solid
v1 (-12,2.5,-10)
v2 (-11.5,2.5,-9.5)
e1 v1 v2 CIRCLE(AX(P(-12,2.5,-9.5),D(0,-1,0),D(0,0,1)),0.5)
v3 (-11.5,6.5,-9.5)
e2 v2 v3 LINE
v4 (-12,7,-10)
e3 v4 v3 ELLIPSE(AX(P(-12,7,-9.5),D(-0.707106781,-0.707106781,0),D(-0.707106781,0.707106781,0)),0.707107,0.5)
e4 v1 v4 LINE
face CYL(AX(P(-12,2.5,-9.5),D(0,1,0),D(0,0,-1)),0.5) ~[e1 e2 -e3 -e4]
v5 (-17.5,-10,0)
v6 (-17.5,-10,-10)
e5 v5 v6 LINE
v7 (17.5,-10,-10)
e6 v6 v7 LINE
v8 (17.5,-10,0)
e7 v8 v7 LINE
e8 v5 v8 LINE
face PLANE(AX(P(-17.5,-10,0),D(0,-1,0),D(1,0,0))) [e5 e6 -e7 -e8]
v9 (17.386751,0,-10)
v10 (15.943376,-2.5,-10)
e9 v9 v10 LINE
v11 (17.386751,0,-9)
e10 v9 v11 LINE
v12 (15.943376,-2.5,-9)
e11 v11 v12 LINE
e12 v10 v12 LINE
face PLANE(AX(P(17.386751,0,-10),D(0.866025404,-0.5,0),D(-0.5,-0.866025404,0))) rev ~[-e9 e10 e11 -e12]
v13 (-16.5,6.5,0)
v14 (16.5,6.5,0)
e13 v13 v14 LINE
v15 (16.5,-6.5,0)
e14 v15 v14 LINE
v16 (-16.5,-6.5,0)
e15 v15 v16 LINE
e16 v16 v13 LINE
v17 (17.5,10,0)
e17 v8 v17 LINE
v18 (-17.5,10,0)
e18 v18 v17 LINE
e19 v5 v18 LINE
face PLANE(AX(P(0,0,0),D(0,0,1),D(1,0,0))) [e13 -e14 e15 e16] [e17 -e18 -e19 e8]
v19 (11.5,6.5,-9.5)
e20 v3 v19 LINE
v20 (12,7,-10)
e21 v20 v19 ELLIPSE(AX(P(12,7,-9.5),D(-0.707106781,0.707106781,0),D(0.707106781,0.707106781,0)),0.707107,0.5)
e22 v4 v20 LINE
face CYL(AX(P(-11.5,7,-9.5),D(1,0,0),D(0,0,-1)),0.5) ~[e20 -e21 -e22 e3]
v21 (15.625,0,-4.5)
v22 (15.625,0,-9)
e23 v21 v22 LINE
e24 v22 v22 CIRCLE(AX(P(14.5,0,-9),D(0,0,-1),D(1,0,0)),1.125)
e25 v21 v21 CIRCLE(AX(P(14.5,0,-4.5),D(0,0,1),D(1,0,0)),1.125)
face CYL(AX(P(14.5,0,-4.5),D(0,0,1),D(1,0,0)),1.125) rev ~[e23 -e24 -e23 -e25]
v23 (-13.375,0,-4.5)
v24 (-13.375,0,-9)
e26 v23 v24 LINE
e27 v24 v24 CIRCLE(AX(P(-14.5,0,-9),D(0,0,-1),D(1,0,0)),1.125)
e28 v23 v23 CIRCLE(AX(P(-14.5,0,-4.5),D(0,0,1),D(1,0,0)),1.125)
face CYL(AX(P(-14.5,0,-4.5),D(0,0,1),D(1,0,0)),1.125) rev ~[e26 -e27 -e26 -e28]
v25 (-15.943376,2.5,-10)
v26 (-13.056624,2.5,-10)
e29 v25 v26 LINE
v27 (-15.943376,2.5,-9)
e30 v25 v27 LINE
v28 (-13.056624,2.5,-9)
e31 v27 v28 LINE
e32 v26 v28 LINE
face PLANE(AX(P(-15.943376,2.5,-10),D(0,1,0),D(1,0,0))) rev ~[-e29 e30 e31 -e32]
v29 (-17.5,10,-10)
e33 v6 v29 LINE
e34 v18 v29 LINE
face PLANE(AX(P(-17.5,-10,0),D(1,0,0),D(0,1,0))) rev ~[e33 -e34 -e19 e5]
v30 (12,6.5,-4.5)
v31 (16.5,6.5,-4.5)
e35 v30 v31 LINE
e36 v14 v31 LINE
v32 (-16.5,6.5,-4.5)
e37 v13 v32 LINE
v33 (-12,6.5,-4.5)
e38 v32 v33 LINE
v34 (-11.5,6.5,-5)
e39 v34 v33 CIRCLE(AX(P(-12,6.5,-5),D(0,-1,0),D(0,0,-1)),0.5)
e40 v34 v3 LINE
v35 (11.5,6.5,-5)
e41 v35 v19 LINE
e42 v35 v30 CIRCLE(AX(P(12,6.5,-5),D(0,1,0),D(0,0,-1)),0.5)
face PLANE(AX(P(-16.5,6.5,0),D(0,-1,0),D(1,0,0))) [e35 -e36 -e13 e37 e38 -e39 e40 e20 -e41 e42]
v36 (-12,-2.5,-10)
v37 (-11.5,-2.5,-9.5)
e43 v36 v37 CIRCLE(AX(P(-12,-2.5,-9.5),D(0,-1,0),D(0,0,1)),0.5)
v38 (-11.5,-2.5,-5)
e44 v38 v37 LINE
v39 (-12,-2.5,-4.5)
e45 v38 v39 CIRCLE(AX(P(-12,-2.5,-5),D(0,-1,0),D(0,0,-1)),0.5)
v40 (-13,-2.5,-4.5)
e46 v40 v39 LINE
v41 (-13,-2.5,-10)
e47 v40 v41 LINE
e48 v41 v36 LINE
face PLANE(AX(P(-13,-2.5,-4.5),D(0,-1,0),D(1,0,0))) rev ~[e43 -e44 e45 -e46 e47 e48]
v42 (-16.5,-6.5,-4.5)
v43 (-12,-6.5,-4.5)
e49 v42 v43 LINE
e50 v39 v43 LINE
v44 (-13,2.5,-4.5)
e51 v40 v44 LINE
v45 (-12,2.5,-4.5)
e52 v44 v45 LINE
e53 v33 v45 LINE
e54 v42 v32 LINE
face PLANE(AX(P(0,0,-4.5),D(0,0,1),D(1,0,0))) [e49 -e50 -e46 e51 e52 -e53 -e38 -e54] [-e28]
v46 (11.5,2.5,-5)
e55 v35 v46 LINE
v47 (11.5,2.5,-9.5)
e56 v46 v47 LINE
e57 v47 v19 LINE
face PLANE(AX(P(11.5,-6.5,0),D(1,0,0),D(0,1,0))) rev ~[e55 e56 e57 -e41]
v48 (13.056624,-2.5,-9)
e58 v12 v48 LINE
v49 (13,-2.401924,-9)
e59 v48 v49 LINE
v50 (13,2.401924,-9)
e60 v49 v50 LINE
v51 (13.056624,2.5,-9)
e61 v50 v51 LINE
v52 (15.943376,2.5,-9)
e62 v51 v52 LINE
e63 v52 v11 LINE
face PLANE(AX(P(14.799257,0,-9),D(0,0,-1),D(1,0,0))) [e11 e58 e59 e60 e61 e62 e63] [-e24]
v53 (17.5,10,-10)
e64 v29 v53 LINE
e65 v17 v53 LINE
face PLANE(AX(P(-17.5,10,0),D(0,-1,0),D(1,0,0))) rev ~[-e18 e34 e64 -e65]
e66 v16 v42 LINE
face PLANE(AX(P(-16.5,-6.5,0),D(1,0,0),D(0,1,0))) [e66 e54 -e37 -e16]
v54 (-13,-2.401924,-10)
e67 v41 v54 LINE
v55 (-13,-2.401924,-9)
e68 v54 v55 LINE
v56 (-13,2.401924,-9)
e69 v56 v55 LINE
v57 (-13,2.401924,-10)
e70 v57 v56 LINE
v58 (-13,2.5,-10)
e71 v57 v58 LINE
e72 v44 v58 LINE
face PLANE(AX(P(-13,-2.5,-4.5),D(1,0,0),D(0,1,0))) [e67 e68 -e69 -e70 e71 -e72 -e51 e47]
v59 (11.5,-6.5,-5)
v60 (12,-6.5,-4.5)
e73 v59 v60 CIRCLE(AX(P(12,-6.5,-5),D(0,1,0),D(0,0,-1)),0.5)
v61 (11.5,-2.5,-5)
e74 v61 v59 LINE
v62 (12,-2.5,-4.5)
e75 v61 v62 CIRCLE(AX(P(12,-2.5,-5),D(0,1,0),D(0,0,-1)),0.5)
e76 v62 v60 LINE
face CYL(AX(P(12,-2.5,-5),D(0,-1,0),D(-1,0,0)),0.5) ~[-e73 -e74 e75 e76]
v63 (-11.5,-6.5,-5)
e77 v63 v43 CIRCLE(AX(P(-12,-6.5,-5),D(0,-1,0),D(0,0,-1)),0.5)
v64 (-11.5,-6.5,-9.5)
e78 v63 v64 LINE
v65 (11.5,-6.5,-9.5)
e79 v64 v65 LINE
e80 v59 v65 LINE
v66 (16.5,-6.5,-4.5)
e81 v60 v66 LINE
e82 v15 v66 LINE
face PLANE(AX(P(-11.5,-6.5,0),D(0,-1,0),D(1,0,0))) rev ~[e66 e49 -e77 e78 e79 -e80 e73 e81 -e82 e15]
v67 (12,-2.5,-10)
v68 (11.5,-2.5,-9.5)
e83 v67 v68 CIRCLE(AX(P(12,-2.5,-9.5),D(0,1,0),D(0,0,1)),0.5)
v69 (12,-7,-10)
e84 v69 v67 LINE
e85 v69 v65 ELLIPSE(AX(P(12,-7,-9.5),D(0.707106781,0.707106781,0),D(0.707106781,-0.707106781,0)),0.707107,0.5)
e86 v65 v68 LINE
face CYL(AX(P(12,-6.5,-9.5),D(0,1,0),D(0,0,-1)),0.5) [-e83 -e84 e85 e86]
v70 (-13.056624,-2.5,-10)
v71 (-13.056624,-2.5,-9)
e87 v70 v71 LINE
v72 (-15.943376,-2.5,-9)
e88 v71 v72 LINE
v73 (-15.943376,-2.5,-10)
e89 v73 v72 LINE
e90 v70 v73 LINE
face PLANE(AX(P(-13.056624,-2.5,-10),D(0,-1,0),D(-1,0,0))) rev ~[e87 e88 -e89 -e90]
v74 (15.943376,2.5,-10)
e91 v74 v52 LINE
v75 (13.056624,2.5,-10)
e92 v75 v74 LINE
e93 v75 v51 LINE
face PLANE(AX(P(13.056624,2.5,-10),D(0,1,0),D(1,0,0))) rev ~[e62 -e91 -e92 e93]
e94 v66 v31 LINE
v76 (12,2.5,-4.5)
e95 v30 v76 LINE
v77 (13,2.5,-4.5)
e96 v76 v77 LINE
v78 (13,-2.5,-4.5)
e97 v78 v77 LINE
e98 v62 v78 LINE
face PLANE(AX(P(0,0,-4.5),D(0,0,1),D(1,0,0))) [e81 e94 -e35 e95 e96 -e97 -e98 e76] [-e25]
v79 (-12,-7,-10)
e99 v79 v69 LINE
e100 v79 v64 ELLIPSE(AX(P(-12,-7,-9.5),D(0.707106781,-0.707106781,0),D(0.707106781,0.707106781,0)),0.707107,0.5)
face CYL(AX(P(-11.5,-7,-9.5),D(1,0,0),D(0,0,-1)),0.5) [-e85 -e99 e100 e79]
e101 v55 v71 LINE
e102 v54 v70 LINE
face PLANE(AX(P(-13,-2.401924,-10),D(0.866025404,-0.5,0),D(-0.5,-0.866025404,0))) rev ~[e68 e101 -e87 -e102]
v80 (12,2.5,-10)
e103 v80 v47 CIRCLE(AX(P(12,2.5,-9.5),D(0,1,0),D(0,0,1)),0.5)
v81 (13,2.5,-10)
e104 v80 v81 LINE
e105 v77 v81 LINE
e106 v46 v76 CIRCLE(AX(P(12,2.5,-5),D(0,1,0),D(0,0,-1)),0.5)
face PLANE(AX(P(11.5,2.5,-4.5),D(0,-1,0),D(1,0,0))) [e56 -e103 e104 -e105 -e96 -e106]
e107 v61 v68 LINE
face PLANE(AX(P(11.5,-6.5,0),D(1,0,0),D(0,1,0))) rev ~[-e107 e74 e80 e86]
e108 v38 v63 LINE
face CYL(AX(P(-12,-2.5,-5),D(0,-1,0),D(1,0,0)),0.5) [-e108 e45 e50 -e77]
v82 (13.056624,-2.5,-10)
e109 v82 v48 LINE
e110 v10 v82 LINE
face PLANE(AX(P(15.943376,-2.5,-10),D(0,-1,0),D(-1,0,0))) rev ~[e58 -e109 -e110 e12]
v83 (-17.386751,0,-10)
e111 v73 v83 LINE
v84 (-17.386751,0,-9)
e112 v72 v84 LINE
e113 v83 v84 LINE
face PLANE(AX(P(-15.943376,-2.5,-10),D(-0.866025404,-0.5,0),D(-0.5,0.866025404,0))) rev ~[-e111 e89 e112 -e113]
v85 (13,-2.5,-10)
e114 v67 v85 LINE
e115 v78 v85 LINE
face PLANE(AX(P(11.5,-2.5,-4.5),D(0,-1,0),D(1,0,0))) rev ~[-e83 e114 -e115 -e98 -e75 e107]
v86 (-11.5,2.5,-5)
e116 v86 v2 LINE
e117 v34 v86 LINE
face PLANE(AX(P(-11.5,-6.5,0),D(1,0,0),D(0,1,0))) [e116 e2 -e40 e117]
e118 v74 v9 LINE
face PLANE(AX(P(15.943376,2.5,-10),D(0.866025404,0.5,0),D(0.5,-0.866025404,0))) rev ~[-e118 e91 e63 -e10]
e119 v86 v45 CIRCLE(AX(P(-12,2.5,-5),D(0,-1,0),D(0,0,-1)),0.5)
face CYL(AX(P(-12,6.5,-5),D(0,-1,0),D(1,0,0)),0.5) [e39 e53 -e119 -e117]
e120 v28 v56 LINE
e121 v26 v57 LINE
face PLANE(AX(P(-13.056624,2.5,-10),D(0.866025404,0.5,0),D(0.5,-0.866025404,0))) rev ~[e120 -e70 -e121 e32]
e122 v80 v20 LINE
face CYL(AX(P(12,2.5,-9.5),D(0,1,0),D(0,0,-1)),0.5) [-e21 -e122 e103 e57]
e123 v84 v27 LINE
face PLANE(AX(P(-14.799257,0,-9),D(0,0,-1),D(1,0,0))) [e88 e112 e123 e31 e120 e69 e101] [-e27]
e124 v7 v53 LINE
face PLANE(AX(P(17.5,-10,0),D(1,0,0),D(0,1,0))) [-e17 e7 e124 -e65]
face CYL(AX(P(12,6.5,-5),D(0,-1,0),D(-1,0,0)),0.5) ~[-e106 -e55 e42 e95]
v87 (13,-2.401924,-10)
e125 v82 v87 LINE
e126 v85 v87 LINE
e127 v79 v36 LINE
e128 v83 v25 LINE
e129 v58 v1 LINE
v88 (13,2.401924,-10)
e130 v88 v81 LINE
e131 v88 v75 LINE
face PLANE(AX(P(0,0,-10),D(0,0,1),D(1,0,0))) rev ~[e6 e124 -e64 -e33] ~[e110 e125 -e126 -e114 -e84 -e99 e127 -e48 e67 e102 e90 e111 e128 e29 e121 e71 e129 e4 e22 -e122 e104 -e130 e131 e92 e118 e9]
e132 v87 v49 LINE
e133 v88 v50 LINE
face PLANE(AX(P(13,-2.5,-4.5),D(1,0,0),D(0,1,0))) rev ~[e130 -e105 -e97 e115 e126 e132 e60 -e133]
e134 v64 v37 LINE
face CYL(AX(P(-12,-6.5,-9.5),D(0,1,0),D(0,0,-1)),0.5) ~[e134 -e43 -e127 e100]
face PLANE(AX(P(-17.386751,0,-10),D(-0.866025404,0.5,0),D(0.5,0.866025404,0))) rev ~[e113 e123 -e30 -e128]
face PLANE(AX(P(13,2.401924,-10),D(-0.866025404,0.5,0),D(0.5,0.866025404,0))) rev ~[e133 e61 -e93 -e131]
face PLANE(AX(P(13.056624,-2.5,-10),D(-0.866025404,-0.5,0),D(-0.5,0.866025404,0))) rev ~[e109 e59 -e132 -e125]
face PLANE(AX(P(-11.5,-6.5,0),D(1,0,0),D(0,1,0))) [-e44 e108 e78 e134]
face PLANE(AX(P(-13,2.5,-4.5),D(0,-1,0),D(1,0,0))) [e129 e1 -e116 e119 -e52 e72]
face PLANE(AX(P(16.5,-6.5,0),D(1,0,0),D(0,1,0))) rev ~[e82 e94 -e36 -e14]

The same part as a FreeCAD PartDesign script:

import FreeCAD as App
import Part
import Sketcher
Q = App.Units.Quantity


def edges_at(feature, points):
    """Names of the edges that pass closest to the given points."""
    edges = feature.Shape.Edges
    near = lambda p: min(range(len(edges)), key=lambda i: edges[i].distToShape(Part.Vertex(*p))[0])
    return sorted({f"Edge{near(p) + 1}" for p in points})


def add_polygon(sketch, points):
    """Adds a closed chain of lines whose ends are joined by coincident constraints."""
    first, n = sketch.GeometryCount, len(points)
    for a, b in zip(points, points[1:] + points[:1]):
        sketch.addGeometry(Part.LineSegment(App.Vector(*a, 0), App.Vector(*b, 0)), False)
    for i in range(n):
        sketch.addConstraint(Sketcher.Constraint("Coincident", first + i, 2, first + (i + 1) % n, 1))

doc = App.newDocument("Part")
body = doc.addObject("PartDesign::Body", "Body")

# Sketch on XY plane
sketch1 = body.newObject("Sketcher::SketchObject", "Sketch")
sketch1.AttachmentSupport = (doc.getObject("XY_Plane"), [""])
sketch1.MapMode = "FlatFace"
add_polygon(sketch1, [(-18, 10), (-18, -10), (18, -10), (18, 10)])  # lines 0-3
sketch1.addConstraint(Sketcher.Constraint("Vertical", 0))
sketch1.addConstraint(Sketcher.Constraint("Horizontal", 1))
sketch1.addConstraint(Sketcher.Constraint("Vertical", 2))
sketch1.addConstraint(Sketcher.Constraint("Horizontal", 3))
sketch1.addConstraint(Sketcher.Constraint("Symmetric", 0, 2, 2, 2, -1, 1))
sketch1.addConstraint(Sketcher.Constraint("DistanceX", 1, 1, 1, 2, Q("35 mm")))
sketch1.addConstraint(Sketcher.Constraint("DistanceY", 0, 2, 0, 1, Q("20 mm")))
pad1 = body.newObject("PartDesign::Pad", "Pad")
pad1.Profile = sketch1
pad1.Length = 10
pad1.Reversed = True

# Sketch on XY plane
sketch2 = body.newObject("Sketcher::SketchObject", "Sketch001")
sketch2.AttachmentSupport = (doc.getObject("XY_Plane"), [""])
sketch2.MapMode = "FlatFace"
add_polygon(sketch2, [(-12, 6), (-12, -6), (12, -6), (12, 6)])  # lines 0-3
sketch2.addConstraint(Sketcher.Constraint("Vertical", 0))
sketch2.addConstraint(Sketcher.Constraint("Horizontal", 1))
sketch2.addConstraint(Sketcher.Constraint("Vertical", 2))
sketch2.addConstraint(Sketcher.Constraint("Horizontal", 3))
sketch2.addConstraint(Sketcher.Constraint("Symmetric", 0, 2, 2, 2, -1, 1))
sketch2.addConstraint(Sketcher.Constraint("DistanceX", 1, 1, 1, 2, Q("23 mm")))
sketch2.addConstraint(Sketcher.Constraint("DistanceY", 0, 2, 0, 1, Q("13 mm")))
pocket1 = body.newObject("PartDesign::Pocket", "Pocket")
pocket1.Profile = sketch2
pocket1.Type = "ThroughAll"

# Sketch on XY plane
sketch3 = body.newObject("Sketcher::SketchObject", "Sketch002")
sketch3.AttachmentSupport = (doc.getObject("XY_Plane"), [""])
sketch3.MapMode = "FlatFace"
add_polygon(sketch3, [(-16, 6), (-16, -6), (16, -6), (16, 6)])  # lines 0-3
sketch3.addConstraint(Sketcher.Constraint("Vertical", 0))
sketch3.addConstraint(Sketcher.Constraint("Horizontal", 1))
sketch3.addConstraint(Sketcher.Constraint("Vertical", 2))
sketch3.addConstraint(Sketcher.Constraint("Horizontal", 3))
sketch3.addConstraint(Sketcher.Constraint("Symmetric", 0, 2, 2, 2, -1, 1))
sketch3.addConstraint(Sketcher.Constraint("DistanceX", 1, 1, 1, 2, Q("33 mm")))
sketch3.addConstraint(Sketcher.Constraint("DistanceY", 0, 2, 0, 1, Q("13 mm")))
pocket2 = body.newObject("PartDesign::Pocket", "Pocket001")
pocket2.Profile = sketch3
pocket2.Length = 4.5

# Sketch on XY plane
sketch4 = body.newObject("Sketcher::SketchObject", "Sketch003")
sketch4.AttachmentSupport = (doc.getObject("XY_Plane"), [""])
sketch4.MapMode = "FlatFace"
sketch4.AttachmentOffset = App.Placement(App.Vector(0, 0, -4.5), App.Rotation())
sketch4.addGeometry(Part.Circle(App.Vector(-14.5, 0, 0), App.Vector(0, 0, 1), 1.1), False)  # 0
sketch4.addGeometry(Part.Circle(App.Vector(14.5, 0, 0), App.Vector(0, 0, 1), 1.1), False)  # 1
add_polygon(sketch4, [(-13, 2.5), (-13, -2.5), (-11.5, -2.5), (-11.5, 2.5)])  # lines 2-5
add_polygon(sketch4, [(11.5, 2.5), (11.5, -2.5), (13, -2.5), (13, 2.5)])  # lines 6-9
sketch4.addConstraint(Sketcher.Constraint("Vertical", 2))
sketch4.addConstraint(Sketcher.Constraint("Horizontal", 3))
sketch4.addConstraint(Sketcher.Constraint("Vertical", 4))
sketch4.addConstraint(Sketcher.Constraint("Horizontal", 5))
sketch4.addConstraint(Sketcher.Constraint("Vertical", 6))
sketch4.addConstraint(Sketcher.Constraint("Horizontal", 7))
sketch4.addConstraint(Sketcher.Constraint("Vertical", 8))
sketch4.addConstraint(Sketcher.Constraint("Horizontal", 9))
sketch4.addConstraint(Sketcher.Constraint("Equal", 0, 1))
sketch4.addConstraint(Sketcher.Constraint("Symmetric", 0, 3, 1, 3, -1, 1))
sketch4.addConstraint(Sketcher.Constraint("Symmetric", 4, 2, 6, 2, -1, 1))
sketch4.addConstraint(Sketcher.Constraint("Symmetric", 2, 2, 8, 2, -1, 1))
sketch4.addConstraint(Sketcher.Constraint("PointOnObject", 0, 3, -1))
sketch4.addConstraint(Sketcher.Constraint("Horizontal", 3, 2, 6, 2))
sketch4.addConstraint(Sketcher.Constraint("Diameter", 0, Q("2.25 mm")))
sketch4.addConstraint(Sketcher.Constraint("DistanceY", 2, 2, 2, 1, Q("5 mm")))
sketch4.addConstraint(Sketcher.Constraint("DistanceX", 3, 1, 3, 2, Q("1.5 mm")))
sketch4.addConstraint(Sketcher.Constraint("DistanceX", 2, 2, -1, 1, Q("13 mm")))
sketch4.addConstraint(Sketcher.Constraint("DistanceX", 0, 3, 1, 3, Q("29 mm")))
pocket3 = body.newObject("PartDesign::Pocket", "Pocket002")
pocket3.Profile = sketch4
pocket3.Type = "ThroughAll"

# Sketch on XY plane
sketch5 = body.newObject("Sketcher::SketchObject", "Sketch004")
sketch5.AttachmentSupport = (doc.getObject("XY_Plane"), [""])
sketch5.MapMode = "FlatFace"
sketch5.AttachmentOffset = App.Placement(App.Vector(0, 0, -10), App.Rotation())
add_polygon(sketch5, [(-15.94, 2.5), (-13.06, 2.5), (-13, 2.4), (-13, -2.4), (-13.06, -2.5), (-15.94, -2.5), (-17.39, 0)])  # lines 0-6
sketch5.addGeometry(Part.Circle(App.Vector(-14.5, 0, 0), App.Vector(0, 0, 1), 1.12), False)  # 7
add_polygon(sketch5, [(13, -2.4), (13, 2.4), (13.06, 2.5), (15.94, 2.5), (17.39, 0), (15.94, -2.5), (13.06, -2.5)])  # lines 8-14
sketch5.addGeometry(Part.Circle(App.Vector(14.5, 0, 0), App.Vector(0, 0, 1), 1.12), False)  # 15
sketch5.addConstraint(Sketcher.Constraint("Horizontal", 0))
sketch5.addConstraint(Sketcher.Constraint("Vertical", 2))
sketch5.addConstraint(Sketcher.Constraint("Horizontal", 4))
sketch5.addConstraint(Sketcher.Constraint("Vertical", 8))
sketch5.addConstraint(Sketcher.Constraint("Horizontal", 10))
sketch5.addConstraint(Sketcher.Constraint("Horizontal", 13))
sketch5.addConstraint(Sketcher.Constraint("Equal", 7, 15))
sketch5.addConstraint(Sketcher.Constraint("Symmetric", 7, 3, 15, 3, -1, 1))
sketch5.addConstraint(Sketcher.Constraint("Symmetric", 2, 2, 8, 2, -1, 1))
sketch5.addConstraint(Sketcher.Constraint("Symmetric", 3, 2, 9, 2, -1, 1))
sketch5.addConstraint(Sketcher.Constraint("Symmetric", 5, 2, 11, 2, -1, 1))
sketch5.addConstraint(Sketcher.Constraint("Symmetric", 6, 2, 12, 2, -1, 1))
sketch5.addConstraint(Sketcher.Constraint("Symmetric", 0, 2, 9, 2, -2))
sketch5.addConstraint(Sketcher.Constraint("PointOnObject", 7, 3, -1))
sketch5.addConstraint(Sketcher.Constraint("PointOnObject", 5, 2, -1))
sketch5.addConstraint(Sketcher.Constraint("Parallel", 1, 5))
sketch5.addConstraint(Sketcher.Constraint("Parallel", 3, 6))
sketch5.addConstraint(Sketcher.Constraint("Parallel", 5, 11))
sketch5.addConstraint(Sketcher.Constraint("Parallel", 11, 14))
sketch5.addConstraint(Sketcher.Constraint("Horizontal", 1, 2, 8, 2))
sketch5.addConstraint(Sketcher.Constraint("Horizontal", 2, 2, 14, 2))
sketch5.addConstraint(Sketcher.Constraint("Diameter", 7, Q("2.25 mm")))
sketch5.addConstraint(Sketcher.Constraint("Angle", 1, Q("-60 deg")))
sketch5.addConstraint(Sketcher.Constraint("DistanceX", 1, 2, -1, 1, Q("13 mm")))
sketch5.addConstraint(Sketcher.Constraint("DistanceX", 7, 3, 15, 3, Q("29 mm")))
sketch5.addConstraint(Sketcher.Constraint("DistanceY", 3, 2, 0, 2, Q("5 mm")))
sketch5.addConstraint(Sketcher.Constraint("DistanceX", 0, 2, 10, 2, Q("29 mm")))
sketch5.addConstraint(Sketcher.Constraint("DistanceX", 0, 1, 0, 2, Q("2.886751 mm")))
pocket4 = body.newObject("PartDesign::Pocket", "Pocket003")
pocket4.Profile = sketch5
pocket4.Length = 1
pocket4.Reversed = True
doc.recompute()

fillet = body.newObject("PartDesign::Fillet", "Fillet")
fillet.Base = (pocket4, edges_at(pocket4, [
    (-11.5, 4.5, -10),
    (-11.5, -4.5, -10),
    (0, -6.5, -10),
    (0, 6.5, -10),
    (11.5, 4.5, -10),
    (11.5, -4.5, -10),
    (11.5, -4.5, -4.5),
    (11.5, 4.5, -4.5),
    (-11.5, -4.5, -4.5),
    (-11.5, 4.5, -4.5),
]))
fillet.Radius = 0.5

doc.recompute()
